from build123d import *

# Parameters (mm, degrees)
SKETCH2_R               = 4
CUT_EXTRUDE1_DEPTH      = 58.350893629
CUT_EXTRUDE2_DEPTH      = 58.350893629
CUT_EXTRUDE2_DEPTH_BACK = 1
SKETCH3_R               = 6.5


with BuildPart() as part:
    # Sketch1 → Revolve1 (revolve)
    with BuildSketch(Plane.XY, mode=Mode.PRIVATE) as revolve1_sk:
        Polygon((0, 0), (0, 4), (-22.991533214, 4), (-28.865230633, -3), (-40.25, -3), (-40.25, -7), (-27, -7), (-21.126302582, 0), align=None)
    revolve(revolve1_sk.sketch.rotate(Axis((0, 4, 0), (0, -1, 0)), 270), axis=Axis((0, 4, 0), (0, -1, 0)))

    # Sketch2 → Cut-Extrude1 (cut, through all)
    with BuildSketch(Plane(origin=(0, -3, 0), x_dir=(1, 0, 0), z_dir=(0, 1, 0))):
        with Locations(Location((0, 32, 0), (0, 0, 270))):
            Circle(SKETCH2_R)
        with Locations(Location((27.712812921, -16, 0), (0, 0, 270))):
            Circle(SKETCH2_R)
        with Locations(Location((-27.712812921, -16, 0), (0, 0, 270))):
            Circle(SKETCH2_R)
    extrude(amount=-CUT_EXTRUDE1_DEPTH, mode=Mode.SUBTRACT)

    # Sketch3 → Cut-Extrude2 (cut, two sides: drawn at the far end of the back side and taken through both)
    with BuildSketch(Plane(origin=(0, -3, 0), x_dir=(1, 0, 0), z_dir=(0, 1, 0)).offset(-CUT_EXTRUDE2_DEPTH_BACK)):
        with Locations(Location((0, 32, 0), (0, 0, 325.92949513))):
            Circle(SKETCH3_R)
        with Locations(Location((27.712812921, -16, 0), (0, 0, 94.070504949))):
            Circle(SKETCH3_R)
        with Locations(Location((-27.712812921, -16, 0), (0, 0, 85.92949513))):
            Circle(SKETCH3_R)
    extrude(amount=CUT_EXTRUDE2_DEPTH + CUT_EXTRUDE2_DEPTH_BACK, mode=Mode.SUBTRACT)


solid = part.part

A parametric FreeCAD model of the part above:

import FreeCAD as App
import Part
import Sketcher

V = App.Vector
Q = App.Units.Quantity

doc = App.newDocument("Part")
body = doc.addObject("PartDesign::Body", "Body")

sketch1 = body.newObject("Sketcher::SketchObject", "Sketch")
sketch1.AttachmentSupport = (doc.getObject("XY_Plane"), [""])
sketch1.MapMode = "FlatFace"
sketch1.addGeometry(Part.LineSegment(V(0, 0, 0), V(0, 4, 0)), False)
sketch1.addGeometry(Part.LineSegment(V(0, 4, 0), V(-23, 4, 0)), False)
sketch1.addGeometry(Part.LineSegment(V(-23, 4, 0), V(-28.9, -3, 0)), False)
sketch1.addGeometry(Part.LineSegment(V(-28.9, -3, 0), V(-40.2, -3, 0)), False)
sketch1.addGeometry(Part.LineSegment(V(-40.2, -3, 0), V(-40.2, -7, 0)), False)
sketch1.addGeometry(Part.LineSegment(V(-40.2, -7, 0), V(-27, -7, 0)), False)
sketch1.addGeometry(Part.LineSegment(V(-27, -7, 0), V(-21.1, 0, 0)), False)
sketch1.addGeometry(Part.LineSegment(V(-21.1, 0, 0), V(0, 0, 0)), False)
sketch1.addConstraint(Sketcher.Constraint("Coincident", 0, 2, 1, 1))
sketch1.addConstraint(Sketcher.Constraint("Coincident", 1, 2, 2, 1))
sketch1.addConstraint(Sketcher.Constraint("Coincident", 2, 2, 3, 1))
sketch1.addConstraint(Sketcher.Constraint("Coincident", 3, 2, 4, 1))
sketch1.addConstraint(Sketcher.Constraint("Coincident", 4, 2, 5, 1))
sketch1.addConstraint(Sketcher.Constraint("Coincident", 5, 2, 6, 1))
sketch1.addConstraint(Sketcher.Constraint("Coincident", 6, 2, 7, 1))
sketch1.addConstraint(Sketcher.Constraint("Coincident", 7, 2, 0, 1))
sketch1.addConstraint(Sketcher.Constraint("Vertical", 0))
sketch1.addConstraint(Sketcher.Constraint("Horizontal", 1))
sketch1.addConstraint(Sketcher.Constraint("Horizontal", 3))
sketch1.addConstraint(Sketcher.Constraint("Vertical", 4))
sketch1.addConstraint(Sketcher.Constraint("Horizontal", 5))
sketch1.addConstraint(Sketcher.Constraint("Horizontal", 7))
sketch1.addConstraint(Sketcher.Constraint("Coincident", 7, 2, -1, 1))
sketch1.addConstraint(Sketcher.Constraint("Parallel", 2, 6))
sketch1.addConstraint(Sketcher.Constraint("Equal", 0, 4))
sketch1.addConstraint(Sketcher.Constraint("DistanceY", 0, 1, 0, 2, Q("4 mm")))
sketch1.addConstraint(Sketcher.Constraint("Angle", 2, Q("-130 deg")))
sketch1.addConstraint(Sketcher.Constraint("DistanceY", 2, 2, -1, 1, Q("3 mm")))
sketch1.addConstraint(Sketcher.Constraint("DistanceX", 5, 2, -1, 1, Q("27 mm")))
sketch1.addConstraint(Sketcher.Constraint("DistanceX", 5, 1, 5, 2, Q("13.25 mm")))
sketch1.addConstraint(Sketcher.Constraint("DistanceX", 3, 2, 3, 1, Q("11.384769 mm")))
revolution = body.newObject("PartDesign::Revolution", "Revolution")
revolution.Profile = sketch1
revolution.ReferenceAxis = (sketch1, ["V_Axis"])
revolution.Angle = 360

sketch2 = body.newObject("Sketcher::SketchObject", "Sketch001")
sketch2.AttachmentSupport = (doc.getObject("XZ_Plane"), [""])
sketch2.MapMode = "FlatFace"
sketch2.AttachmentOffset = App.Placement(V(0, 0, 3), App.Rotation())
sketch2.addGeometry(Part.Circle(V(0, -32, 0), V(0, 0, 1), 4), False)
sketch2.addGeometry(Part.Circle(V(27.7, 16, 0), V(0, 0, 1), 4), False)
sketch2.addGeometry(Part.Circle(V(-27.7, 16, 0), V(0, 0, 1), 4), False)
sketch2.addConstraint(Sketcher.Constraint("Equal", 0, 1))
sketch2.addConstraint(Sketcher.Constraint("Equal", 1, 2))
sketch2.addConstraint(Sketcher.Constraint("Symmetric", 1, 3, 2, 3, -2))
sketch2.addConstraint(Sketcher.Constraint("PointOnObject", 0, 3, -2))
sketch2.addConstraint(Sketcher.Constraint("Diameter", 0, Q("8 mm")))
sketch2.addConstraint(Sketcher.Constraint("DistanceY", 0, 3, -1, 1, Q("32 mm")))
sketch2.addConstraint(Sketcher.Constraint("DistanceY", -1, 1, 1, 3, Q("16 mm")))
sketch2.addConstraint(Sketcher.Constraint("DistanceX", -1, 1, 1, 3, Q("27.712813 mm")))
pocket1 = body.newObject("PartDesign::Pocket", "Pocket")
pocket1.Profile = sketch2
pocket1.Type = "ThroughAll"
pocket1.Reversed = True

sketch3 = body.newObject("Sketcher::SketchObject", "Sketch002")
sketch3.AttachmentSupport = (doc.getObject("XZ_Plane"), [""])
sketch3.MapMode = "FlatFace"
sketch3.AttachmentOffset = App.Placement(V(0, 0, 3), App.Rotation())
sketch3.addGeometry(Part.Circle(V(0, -32, 0), V(0, 0, 1), 6), False)
sketch3.addGeometry(Part.Circle(V(28, 16, 0), V(0, 0, 1), 6), False)
sketch3.addGeometry(Part.Circle(V(-28, 16, 0), V(0, 0, 1), 6), False)
sketch3.addConstraint(Sketcher.Constraint("Equal", 0, 1))
sketch3.addConstraint(Sketcher.Constraint("Equal", 1, 2))
sketch3.addConstraint(Sketcher.Constraint("Symmetric", 1, 3, 2, 3, -2))
sketch3.addConstraint(Sketcher.Constraint("PointOnObject", 0, 3, -2))
sketch3.addConstraint(Sketcher.Constraint("Diameter", 0, Q("13 mm")))
sketch3.addConstraint(Sketcher.Constraint("DistanceY", 0, 3, -1, 1, Q("32 mm")))
sketch3.addConstraint(Sketcher.Constraint("DistanceY", -1, 1, 1, 3, Q("16 mm")))
sketch3.addConstraint(Sketcher.Constraint("DistanceX", -1, 1, 1, 3, Q("27.712813 mm")))
pocket2 = body.newObject("PartDesign::Pocket", "Pocket001")
pocket2.Profile = sketch3
pocket2.Type = "TwoLengths"
pocket2.Length = 58.350894
pocket2.Length2 = 1

doc.recompute()
